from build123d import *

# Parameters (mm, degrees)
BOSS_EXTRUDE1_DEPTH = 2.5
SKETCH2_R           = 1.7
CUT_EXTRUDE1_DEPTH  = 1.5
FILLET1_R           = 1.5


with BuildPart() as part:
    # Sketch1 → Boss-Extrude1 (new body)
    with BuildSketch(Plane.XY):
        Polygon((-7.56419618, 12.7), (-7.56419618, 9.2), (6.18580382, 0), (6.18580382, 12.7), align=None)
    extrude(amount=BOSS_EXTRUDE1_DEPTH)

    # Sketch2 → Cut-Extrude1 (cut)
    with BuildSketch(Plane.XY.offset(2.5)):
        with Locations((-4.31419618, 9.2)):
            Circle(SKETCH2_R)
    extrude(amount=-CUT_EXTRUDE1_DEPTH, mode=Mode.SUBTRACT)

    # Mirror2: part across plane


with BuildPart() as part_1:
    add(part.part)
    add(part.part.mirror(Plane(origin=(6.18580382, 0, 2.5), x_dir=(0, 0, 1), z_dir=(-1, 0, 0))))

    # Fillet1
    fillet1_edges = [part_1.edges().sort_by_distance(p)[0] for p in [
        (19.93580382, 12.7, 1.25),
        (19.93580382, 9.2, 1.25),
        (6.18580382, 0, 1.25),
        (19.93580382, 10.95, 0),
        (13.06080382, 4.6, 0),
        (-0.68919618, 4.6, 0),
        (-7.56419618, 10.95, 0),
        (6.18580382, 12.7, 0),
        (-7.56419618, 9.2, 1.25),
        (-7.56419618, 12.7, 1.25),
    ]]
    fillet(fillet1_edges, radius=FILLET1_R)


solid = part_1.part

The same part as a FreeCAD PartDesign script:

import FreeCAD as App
import Part
import Sketcher

V = App.Vector


def edges_at(feature, points):
    """Names of the edges that pass closest to the given points."""
    edges = feature.Shape.Edges
    near = lambda p: min(range(len(edges)), key=lambda i: edges[i].distToShape(Part.Vertex(*p))[0])
    return sorted({f"Edge{near(p) + 1}" for p in points})


def add_polygon(sketch, points):
    """Adds a closed chain of lines whose ends are joined by coincident constraints."""
    first, n = sketch.GeometryCount, len(points)
    for a, b in zip(points, points[1:] + points[:1]):
        sketch.addGeometry(Part.LineSegment(App.Vector(*a, 0), App.Vector(*b, 0)), False)
    for i in range(n):
        sketch.addConstraint(Sketcher.Constraint("Coincident", first + i, 2, first + (i + 1) % n, 1))

doc = App.newDocument("Part")
body = doc.addObject("PartDesign::Body", "Body")

# Sketch on XY plane
sketch1 = doc.addObject("Sketcher::SketchObject", "Sketch")
body.addObject(sketch1)
sketch1.AttachmentSupport = (doc.XY_Plane, [""])
sketch1.MapMode = "FlatFace"
add_polygon(sketch1, [(-7.6, 12.7), (-7.6, 9.2), (6.2, 0), (6.2, 12.7)])  # lines 0-3
sketch1.addConstraint(Sketcher.Constraint("Vertical", 0))
sketch1.addConstraint(Sketcher.Constraint("Vertical", 2))
sketch1.addConstraint(Sketcher.Constraint("Horizontal", 3))
sketch1.addConstraint(Sketcher.Constraint("PointOnObject", 1, 2, -1))
sketch1.addConstraint(Sketcher.Constraint("DistanceY", 0, 2, 0, 1, 3.5))
sketch1.addConstraint(Sketcher.Constraint("DistanceY", 2, 1, 2, 2, 12.7))
sketch1.addConstraint(Sketcher.Constraint("DistanceX", 3, 2, 3, 1, 13.75))
sketch1.addConstraint(Sketcher.Constraint("DistanceX", 0, 2, -1, 1, 7.564196))
pad1 = doc.addObject("PartDesign::Pad", "Pad")
body.addObject(pad1)
pad1.Profile = sketch1
pad1.Length = 2.5

# Sketch on XY plane
sketch2 = doc.addObject("Sketcher::SketchObject", "Sketch001")
body.addObject(sketch2)
sketch2.AttachmentSupport = (doc.XY_Plane, [""])
sketch2.MapMode = "FlatFace"
sketch2.AttachmentOffset = App.Placement(V(0, 0, 2.5), App.Rotation())
sketch2.addGeometry(Part.Circle(V(-4.3, 9.2, 0), V(0, 0, 1), 1.7), False)
sketch2.addConstraint(Sketcher.Constraint("Diameter", 0, 3.4))
sketch2.addConstraint(Sketcher.Constraint("DistanceY", -1, 1, 0, 3, 9.2))
sketch2.addConstraint(Sketcher.Constraint("DistanceX", 0, 3, -1, 1, 4.314196))
pocket1 = doc.addObject("PartDesign::Pocket", "Pocket")
body.addObject(pocket1)
pocket1.Profile = sketch2
pocket1.Length = 1.5
body2 = doc.addObject("PartDesign::Body", "Body001")
doc.recompute()

body2.BaseFeature = body
doc.recompute()

mirroring = doc.addObject("Part::Mirroring", "Mirroring")
mirroring.Source = body
mirroring.Base = V(6.185804, 0, 2.5)
mirroring.Normal = V(-1, 0, 0)
body3 = doc.addObject("PartDesign::Body", "Body002")
body3.BaseFeature = mirroring
boolean = doc.addObject("PartDesign::Boolean", "Boolean")
body2.addObject(boolean)
boolean.Type = "Fuse"
boolean.addObjects([body3])
doc.recompute()

fillet = doc.addObject("PartDesign::Fillet", "Fillet")
body2.addObject(fillet)
fillet.Base = (boolean, edges_at(boolean, [
    (19.936, 12.7, 1.25),
    (19.936, 9.2, 1.25),
    (6.186, 0, 1.25),
    (19.936, 10.95, 0),
    (13.061, 4.6, 0),
    (-0.689, 4.6, 0),
    (-7.564, 10.95, 0),
    (6.186, 12.7, 0),
    (-7.564, 9.2, 1.25),
    (-7.564, 12.7, 1.25),
]))
fillet.Radius = 1.5
mirroring.Visibility = False

doc.recompute()
